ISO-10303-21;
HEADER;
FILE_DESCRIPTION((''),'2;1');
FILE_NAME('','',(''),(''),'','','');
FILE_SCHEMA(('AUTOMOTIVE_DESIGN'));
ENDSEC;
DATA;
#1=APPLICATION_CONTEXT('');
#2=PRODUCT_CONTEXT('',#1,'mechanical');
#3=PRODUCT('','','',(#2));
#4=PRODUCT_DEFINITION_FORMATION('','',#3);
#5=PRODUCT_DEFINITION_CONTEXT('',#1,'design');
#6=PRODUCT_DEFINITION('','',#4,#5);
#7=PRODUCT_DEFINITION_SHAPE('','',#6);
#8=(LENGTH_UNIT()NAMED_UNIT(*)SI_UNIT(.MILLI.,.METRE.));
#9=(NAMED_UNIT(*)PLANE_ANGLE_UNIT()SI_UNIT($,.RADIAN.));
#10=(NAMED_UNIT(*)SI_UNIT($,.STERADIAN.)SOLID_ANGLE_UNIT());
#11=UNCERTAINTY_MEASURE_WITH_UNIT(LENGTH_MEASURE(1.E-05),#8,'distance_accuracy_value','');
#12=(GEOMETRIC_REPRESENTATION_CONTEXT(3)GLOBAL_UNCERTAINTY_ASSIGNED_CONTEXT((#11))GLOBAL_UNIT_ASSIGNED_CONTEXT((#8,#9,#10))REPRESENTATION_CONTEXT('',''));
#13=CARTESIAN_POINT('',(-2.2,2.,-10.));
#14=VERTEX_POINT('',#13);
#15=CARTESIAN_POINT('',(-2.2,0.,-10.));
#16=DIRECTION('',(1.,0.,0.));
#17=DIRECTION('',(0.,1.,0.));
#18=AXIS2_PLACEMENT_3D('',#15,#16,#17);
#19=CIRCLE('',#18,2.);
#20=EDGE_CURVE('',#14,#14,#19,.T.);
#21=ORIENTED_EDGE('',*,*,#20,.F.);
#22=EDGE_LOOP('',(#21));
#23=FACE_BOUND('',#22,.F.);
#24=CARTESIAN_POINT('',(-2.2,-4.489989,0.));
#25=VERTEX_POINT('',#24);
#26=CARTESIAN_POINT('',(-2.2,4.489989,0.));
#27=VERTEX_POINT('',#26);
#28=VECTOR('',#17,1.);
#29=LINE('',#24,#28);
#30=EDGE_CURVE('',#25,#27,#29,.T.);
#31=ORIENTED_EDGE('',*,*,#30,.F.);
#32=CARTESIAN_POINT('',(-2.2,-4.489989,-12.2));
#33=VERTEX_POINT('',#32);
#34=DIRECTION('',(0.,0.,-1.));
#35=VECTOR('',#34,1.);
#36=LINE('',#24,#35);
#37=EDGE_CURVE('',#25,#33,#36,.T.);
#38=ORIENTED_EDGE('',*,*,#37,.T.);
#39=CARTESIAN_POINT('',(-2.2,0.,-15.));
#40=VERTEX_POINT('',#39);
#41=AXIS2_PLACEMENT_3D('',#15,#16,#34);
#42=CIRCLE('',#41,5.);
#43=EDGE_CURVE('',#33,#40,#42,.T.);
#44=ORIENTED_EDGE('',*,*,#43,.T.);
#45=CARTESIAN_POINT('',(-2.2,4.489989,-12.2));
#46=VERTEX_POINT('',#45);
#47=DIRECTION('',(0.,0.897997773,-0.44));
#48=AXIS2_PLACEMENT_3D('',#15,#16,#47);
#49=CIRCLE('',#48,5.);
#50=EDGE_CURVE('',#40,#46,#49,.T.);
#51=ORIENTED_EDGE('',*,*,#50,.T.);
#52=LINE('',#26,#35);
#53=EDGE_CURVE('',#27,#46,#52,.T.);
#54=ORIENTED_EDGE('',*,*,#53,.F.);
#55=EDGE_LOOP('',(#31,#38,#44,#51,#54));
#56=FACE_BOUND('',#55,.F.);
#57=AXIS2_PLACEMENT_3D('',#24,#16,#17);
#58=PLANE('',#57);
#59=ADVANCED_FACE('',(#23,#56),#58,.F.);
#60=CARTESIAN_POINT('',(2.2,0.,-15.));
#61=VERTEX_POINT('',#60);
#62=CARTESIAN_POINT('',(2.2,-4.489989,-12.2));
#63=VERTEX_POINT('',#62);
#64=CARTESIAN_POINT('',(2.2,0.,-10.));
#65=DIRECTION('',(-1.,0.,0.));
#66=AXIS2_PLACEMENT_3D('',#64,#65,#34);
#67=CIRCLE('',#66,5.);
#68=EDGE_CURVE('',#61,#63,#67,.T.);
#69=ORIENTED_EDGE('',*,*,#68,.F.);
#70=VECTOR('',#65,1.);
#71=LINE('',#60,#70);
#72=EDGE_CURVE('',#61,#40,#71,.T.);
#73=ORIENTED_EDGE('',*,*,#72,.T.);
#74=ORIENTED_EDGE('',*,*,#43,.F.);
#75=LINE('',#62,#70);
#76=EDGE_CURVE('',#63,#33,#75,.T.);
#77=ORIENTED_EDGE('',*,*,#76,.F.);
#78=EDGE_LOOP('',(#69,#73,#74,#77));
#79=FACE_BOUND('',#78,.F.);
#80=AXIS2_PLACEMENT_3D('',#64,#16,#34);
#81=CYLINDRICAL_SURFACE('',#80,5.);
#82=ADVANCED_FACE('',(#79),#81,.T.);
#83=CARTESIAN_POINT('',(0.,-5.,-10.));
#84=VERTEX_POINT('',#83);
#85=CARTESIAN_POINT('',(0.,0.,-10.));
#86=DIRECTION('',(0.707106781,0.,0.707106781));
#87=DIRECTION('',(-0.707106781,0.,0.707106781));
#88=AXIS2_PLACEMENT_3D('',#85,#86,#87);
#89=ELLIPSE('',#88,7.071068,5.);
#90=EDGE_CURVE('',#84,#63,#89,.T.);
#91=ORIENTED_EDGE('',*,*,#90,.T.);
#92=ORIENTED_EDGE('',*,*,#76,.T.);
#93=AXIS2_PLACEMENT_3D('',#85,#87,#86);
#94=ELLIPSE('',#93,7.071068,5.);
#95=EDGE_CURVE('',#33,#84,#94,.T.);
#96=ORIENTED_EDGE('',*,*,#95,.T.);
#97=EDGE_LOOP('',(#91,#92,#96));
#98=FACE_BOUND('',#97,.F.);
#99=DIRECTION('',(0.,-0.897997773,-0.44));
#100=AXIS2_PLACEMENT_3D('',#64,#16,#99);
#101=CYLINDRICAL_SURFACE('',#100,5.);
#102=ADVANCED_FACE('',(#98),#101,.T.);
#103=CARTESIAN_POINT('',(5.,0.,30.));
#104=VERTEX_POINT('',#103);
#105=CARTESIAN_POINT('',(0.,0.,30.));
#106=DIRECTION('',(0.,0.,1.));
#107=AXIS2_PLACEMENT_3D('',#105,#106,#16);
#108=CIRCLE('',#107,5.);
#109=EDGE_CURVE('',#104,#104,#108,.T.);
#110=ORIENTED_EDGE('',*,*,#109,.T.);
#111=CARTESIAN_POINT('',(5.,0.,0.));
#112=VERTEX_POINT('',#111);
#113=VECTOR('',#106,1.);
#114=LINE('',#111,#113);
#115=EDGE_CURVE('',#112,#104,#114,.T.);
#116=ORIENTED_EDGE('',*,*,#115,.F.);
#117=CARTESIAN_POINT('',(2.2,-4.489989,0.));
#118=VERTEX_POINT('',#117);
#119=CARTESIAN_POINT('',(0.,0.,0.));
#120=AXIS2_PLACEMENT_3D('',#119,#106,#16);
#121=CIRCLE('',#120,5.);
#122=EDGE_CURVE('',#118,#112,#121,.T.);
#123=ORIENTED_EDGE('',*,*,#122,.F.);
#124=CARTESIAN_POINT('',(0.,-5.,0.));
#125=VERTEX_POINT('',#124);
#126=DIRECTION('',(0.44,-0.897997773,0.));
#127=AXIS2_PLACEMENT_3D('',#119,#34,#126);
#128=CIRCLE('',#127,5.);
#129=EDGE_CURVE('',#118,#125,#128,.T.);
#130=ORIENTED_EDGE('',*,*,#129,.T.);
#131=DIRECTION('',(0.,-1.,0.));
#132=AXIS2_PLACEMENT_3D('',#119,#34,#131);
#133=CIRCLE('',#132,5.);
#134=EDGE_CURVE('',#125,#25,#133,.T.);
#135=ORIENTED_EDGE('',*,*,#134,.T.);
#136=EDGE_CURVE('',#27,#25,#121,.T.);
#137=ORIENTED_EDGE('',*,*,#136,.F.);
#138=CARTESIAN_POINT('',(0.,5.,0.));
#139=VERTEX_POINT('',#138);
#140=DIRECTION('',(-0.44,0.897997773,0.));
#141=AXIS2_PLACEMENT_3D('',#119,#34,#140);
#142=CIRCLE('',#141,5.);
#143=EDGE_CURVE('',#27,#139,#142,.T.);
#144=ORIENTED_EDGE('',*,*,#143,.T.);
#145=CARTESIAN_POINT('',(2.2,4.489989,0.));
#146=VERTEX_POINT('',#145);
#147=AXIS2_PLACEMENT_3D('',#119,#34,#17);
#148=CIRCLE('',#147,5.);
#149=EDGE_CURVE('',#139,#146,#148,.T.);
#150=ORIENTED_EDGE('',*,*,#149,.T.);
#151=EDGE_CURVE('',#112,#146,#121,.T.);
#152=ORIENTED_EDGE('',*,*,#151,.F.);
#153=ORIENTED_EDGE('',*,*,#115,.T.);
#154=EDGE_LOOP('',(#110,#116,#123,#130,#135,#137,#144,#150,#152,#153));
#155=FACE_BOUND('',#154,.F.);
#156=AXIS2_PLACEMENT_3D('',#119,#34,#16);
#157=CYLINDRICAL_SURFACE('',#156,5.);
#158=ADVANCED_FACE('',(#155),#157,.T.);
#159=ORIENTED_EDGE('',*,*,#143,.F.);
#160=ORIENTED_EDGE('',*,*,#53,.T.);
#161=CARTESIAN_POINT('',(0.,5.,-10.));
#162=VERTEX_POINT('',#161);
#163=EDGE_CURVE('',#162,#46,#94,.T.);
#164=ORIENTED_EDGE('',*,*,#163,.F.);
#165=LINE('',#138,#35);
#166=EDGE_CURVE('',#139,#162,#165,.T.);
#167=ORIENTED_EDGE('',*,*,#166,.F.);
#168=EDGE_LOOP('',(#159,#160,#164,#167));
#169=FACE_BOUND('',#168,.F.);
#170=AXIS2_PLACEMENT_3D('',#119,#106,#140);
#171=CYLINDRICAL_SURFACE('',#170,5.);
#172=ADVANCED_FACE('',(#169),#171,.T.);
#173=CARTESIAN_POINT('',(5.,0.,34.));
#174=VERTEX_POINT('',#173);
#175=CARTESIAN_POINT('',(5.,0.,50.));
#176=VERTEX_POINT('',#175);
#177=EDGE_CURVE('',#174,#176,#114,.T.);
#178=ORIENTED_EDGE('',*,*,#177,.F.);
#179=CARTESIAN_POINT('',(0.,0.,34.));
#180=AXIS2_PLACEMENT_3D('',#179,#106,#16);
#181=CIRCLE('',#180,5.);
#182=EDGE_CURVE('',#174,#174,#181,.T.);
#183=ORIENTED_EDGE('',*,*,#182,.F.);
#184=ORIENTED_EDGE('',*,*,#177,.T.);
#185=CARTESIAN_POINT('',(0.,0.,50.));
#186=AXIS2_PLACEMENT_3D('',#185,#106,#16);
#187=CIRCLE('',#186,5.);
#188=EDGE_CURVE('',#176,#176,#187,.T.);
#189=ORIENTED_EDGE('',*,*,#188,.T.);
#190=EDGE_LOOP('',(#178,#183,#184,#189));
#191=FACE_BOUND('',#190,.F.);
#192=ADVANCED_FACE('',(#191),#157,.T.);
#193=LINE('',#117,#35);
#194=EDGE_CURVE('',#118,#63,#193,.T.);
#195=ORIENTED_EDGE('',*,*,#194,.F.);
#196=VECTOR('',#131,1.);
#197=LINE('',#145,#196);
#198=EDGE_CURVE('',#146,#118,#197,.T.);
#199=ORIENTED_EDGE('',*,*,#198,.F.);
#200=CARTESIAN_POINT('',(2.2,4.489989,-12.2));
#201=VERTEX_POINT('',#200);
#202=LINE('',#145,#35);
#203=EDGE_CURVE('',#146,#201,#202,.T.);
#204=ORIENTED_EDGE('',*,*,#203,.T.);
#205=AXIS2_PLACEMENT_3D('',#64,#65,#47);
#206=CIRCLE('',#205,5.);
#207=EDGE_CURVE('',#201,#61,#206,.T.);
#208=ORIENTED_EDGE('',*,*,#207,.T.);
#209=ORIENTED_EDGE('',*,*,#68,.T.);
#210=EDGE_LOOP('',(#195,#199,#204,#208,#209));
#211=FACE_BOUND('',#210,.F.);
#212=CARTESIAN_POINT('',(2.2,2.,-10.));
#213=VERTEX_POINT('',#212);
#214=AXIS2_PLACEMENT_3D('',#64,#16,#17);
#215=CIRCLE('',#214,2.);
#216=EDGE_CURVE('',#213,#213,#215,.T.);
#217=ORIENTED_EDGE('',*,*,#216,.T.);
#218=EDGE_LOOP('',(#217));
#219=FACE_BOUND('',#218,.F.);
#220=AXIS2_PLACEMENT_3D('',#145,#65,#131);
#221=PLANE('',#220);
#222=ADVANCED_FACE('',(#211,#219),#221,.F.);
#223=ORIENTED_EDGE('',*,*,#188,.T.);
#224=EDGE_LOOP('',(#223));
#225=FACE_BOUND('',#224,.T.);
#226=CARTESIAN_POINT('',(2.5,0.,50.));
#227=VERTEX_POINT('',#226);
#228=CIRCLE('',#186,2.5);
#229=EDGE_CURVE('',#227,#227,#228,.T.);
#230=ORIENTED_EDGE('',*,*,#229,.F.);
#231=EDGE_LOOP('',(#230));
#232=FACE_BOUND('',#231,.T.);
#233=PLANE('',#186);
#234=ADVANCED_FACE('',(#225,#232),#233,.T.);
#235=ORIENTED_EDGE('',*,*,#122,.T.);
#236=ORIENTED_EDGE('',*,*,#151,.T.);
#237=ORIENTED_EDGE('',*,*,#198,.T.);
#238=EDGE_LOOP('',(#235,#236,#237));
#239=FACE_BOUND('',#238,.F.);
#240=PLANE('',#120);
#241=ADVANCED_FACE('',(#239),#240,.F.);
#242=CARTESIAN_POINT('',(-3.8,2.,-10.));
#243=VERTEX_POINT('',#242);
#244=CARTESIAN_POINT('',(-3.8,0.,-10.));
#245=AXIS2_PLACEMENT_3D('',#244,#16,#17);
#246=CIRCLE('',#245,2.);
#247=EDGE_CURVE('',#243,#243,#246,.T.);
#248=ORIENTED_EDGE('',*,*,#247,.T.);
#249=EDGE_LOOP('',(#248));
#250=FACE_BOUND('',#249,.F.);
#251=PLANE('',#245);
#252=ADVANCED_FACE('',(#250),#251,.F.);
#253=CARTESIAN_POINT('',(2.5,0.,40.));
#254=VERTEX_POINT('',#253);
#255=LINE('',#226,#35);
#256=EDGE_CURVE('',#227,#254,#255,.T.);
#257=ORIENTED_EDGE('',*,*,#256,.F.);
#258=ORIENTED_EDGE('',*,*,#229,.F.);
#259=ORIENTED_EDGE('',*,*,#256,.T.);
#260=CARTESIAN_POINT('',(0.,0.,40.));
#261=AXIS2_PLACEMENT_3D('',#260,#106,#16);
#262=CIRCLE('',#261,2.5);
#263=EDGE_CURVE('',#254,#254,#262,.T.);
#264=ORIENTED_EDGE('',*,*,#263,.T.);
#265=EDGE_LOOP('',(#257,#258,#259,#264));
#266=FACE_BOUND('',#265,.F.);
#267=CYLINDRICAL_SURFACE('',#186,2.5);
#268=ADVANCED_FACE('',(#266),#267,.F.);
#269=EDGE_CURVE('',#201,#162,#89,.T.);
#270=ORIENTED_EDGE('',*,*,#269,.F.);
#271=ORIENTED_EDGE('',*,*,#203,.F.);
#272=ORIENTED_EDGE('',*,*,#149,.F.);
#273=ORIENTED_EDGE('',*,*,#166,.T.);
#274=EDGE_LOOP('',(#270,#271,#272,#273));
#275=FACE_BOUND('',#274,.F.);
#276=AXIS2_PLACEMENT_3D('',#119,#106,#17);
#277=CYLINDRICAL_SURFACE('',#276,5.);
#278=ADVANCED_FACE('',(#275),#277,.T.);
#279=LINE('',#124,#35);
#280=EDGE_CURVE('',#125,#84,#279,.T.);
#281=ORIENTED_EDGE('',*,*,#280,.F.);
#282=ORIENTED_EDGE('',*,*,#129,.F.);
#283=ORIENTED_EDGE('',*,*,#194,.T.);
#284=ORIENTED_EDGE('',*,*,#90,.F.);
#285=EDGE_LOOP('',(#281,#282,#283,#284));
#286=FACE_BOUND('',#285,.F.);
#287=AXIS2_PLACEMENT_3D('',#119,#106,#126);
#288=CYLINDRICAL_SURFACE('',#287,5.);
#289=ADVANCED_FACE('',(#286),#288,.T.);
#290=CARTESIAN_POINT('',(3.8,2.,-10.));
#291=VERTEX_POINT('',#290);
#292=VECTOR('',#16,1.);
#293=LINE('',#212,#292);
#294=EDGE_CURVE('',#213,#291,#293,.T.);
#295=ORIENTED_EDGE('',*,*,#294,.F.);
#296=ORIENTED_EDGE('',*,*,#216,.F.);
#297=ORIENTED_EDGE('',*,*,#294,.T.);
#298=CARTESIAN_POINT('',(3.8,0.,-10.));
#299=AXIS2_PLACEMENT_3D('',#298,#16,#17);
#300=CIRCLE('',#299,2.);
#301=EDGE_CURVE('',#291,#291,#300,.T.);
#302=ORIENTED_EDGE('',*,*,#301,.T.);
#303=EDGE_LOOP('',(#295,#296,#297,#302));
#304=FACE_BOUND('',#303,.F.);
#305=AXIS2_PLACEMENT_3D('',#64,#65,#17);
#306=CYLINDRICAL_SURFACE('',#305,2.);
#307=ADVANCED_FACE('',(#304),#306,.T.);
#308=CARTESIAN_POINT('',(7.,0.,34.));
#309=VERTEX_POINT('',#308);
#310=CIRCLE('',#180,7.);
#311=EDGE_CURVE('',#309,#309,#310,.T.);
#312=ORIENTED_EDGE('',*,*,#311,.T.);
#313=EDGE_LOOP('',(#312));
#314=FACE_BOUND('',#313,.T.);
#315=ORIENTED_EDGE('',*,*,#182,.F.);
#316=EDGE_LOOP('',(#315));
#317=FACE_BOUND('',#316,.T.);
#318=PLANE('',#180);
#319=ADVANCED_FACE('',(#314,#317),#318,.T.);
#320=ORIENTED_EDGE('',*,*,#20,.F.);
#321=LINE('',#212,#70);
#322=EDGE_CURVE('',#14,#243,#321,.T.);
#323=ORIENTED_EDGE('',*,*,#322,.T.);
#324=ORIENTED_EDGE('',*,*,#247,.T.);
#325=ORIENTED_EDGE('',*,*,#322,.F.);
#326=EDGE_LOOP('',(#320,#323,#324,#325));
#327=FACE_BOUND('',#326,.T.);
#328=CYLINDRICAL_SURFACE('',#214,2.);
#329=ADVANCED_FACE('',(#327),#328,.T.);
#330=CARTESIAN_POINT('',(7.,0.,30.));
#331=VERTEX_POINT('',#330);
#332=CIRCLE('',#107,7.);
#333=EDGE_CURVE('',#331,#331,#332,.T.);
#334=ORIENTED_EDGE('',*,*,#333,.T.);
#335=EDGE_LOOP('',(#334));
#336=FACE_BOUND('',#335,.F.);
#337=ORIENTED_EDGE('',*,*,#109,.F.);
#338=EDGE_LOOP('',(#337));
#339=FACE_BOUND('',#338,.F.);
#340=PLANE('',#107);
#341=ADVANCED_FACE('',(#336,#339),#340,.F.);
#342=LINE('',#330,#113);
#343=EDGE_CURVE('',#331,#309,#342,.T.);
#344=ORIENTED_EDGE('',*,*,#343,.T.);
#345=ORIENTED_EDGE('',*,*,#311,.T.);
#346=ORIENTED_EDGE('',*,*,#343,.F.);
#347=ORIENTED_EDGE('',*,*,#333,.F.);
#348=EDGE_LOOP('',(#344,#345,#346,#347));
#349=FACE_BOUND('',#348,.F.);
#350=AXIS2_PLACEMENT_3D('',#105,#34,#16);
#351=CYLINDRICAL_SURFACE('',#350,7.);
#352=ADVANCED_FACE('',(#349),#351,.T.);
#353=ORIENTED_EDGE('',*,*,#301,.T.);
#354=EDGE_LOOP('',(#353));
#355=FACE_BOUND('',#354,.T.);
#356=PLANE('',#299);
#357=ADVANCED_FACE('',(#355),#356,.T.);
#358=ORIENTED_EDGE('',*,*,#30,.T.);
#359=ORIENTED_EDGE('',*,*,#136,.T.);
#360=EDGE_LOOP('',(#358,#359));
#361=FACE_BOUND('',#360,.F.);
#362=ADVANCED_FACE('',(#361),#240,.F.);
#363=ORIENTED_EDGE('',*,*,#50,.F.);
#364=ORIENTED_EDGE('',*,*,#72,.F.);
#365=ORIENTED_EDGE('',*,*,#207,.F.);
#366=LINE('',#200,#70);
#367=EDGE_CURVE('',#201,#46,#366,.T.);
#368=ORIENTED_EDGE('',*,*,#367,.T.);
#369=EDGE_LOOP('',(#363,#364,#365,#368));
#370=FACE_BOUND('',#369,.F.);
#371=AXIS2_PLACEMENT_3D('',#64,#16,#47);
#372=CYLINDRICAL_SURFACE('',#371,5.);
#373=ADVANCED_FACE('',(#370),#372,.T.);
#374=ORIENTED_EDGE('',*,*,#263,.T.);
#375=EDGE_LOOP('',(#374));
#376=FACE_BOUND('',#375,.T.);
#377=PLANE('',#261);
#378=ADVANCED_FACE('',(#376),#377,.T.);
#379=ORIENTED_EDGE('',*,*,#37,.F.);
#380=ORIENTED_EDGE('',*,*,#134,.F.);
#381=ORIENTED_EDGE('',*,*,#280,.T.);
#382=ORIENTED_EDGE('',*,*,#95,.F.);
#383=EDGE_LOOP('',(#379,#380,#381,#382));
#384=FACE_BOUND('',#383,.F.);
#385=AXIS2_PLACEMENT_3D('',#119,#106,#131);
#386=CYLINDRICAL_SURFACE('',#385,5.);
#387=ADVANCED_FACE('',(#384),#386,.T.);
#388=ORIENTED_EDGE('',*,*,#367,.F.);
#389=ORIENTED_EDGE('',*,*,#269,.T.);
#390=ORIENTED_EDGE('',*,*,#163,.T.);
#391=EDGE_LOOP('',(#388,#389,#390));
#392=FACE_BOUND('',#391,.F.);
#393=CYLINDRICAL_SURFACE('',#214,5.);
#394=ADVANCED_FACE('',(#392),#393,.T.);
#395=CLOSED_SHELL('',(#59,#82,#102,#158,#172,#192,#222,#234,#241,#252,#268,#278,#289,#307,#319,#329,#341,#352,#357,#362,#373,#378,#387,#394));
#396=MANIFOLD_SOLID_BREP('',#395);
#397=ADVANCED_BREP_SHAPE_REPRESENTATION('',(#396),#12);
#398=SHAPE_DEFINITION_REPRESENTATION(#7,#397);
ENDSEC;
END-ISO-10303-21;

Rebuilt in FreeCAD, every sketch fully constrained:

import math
import FreeCAD as App
import Part
import Sketcher
Q = App.Units.Quantity

doc = App.newDocument("Part")
params = doc.addObject("Spreadsheet::Sheet", "Params")
for row, (alias, value) in enumerate([
    ("sketch1_diameter", "10 mm"),
    ("pad1_length", "50 mm"),
    ("sketch2_radius", "5 mm"),
    ("pad2_length", "15 mm"),
    ("sketch3_radius", "5 mm"),
    ("pocket1_length", "25 mm"),
    ("sketch4_diameter", "4 mm"),
    ("pad3_length", "1.6 mm"),
    ("pad3_length2", "6 mm"),
    ("sketch5_diameter", "5 mm"),
    ("pocket2_length", "10 mm"),
    ("sketch6_diameter", "14 mm"),
    ("sketch6_diameter2", "10 mm"),
    ("pad4_length", "4 mm"),
], start=1):
    params.set(f"A{row}", alias)
    params.set(f"B{row}", "=" + value)
    params.setAlias(f"B{row}", alias)

body = doc.addObject("PartDesign::Body", "Body")

# Sketch on XY plane
sketch1 = body.newObject("Sketcher::SketchObject", "Sketch")
sketch1.AttachmentSupport = (doc.getObject("XY_Plane"), [""])
sketch1.MapMode = "FlatFace"
sketch1.addGeometry(Part.Circle(App.Vector(0, 0, 0), App.Vector(0, 0, 1), 5), False)
sketch1.addConstraint([
    Sketcher.Constraint("Coincident", 0, 3, -1, 1),
    Sketcher.Constraint("Diameter", 0, Q("10 mm")),
])
sketch1.setExpression("Constraints[1]", "Params.sketch1_diameter")
pad1 = body.newObject("PartDesign::Pad", "Pad")
pad1.Profile = sketch1
pad1.setExpression("Length", "Params.pad1_length")

# Sketch on XY plane
sketch2 = body.newObject("Sketcher::SketchObject", "Sketch001")
sketch2.AttachmentSupport = (doc.getObject("XY_Plane"), [""])
sketch2.MapMode = "FlatFace"
sketch2.addGeometry([
    Part.ArcOfCircle(Part.Circle(App.Vector(0, 0, 0), App.Vector(0, 0, 1), 5), math.radians(-90), math.radians(-64)),  # 0
    Part.ArcOfCircle(Part.Circle(App.Vector(0, 0, 0), App.Vector(0, 0, 1), 5), math.radians(-116), math.radians(-90)),  # 1
    Part.LineSegment(App.Vector(-2.2, -4.5, 0), App.Vector(-2.2, 4.5, 0)),  # 2
    Part.ArcOfCircle(Part.Circle(App.Vector(0, 0, 0), App.Vector(0, 0, 1), 5), math.radians(90), math.radians(116)),  # 3
    Part.ArcOfCircle(Part.Circle(App.Vector(0, 0, 0), App.Vector(0, 0, 1), 5), math.radians(64), math.radians(90)),  # 4
    Part.LineSegment(App.Vector(2.2, 4.5, 0), App.Vector(2.2, -4.5, 0)),  # 5
], False)
sketch2.addConstraint([
    Sketcher.Constraint("Tangent", 0, 1, 1, 2),
    Sketcher.Constraint("Coincident", 1, 1, 2, 1),
    Sketcher.Constraint("Coincident", 2, 2, 3, 2),
    Sketcher.Constraint("Tangent", 3, 1, 4, 2),
    Sketcher.Constraint("Coincident", 4, 1, 5, 1),
    Sketcher.Constraint("Coincident", 5, 2, 0, 2),
    Sketcher.Constraint("Vertical", 2),
    Sketcher.Constraint("Vertical", 5),
    Sketcher.Constraint("Coincident", 0, 3, -1, 1),
    Sketcher.Constraint("Coincident", 3, 3, -1, 1),
    Sketcher.Constraint("Equal", 0, 1),
    Sketcher.Constraint("Equal", 1, 3),
    Sketcher.Constraint("Equal", 3, 4),
    Sketcher.Constraint("PointOnObject", 0, 1, -2),
    Sketcher.Constraint("PointOnObject", 3, 1, -2),
    Sketcher.Constraint("Horizontal", 2, 2, 4, 1),
    Sketcher.Constraint("Radius", 0, Q("5 mm")),
    Sketcher.Constraint("DistanceX", 1, 1, -1, 1, Q("2.2 mm")),
])
sketch2.setExpression("Constraints[16]", "Params.sketch2_radius")
pad2 = body.newObject("PartDesign::Pad", "Pad001")
pad2.Profile = sketch2
pad2.setExpression("Length", "Params.pad2_length")
pad2.Reversed = True

# Sketch on YZ plane
sketch3 = body.newObject("Sketcher::SketchObject", "Sketch002")
sketch3.AttachmentSupport = (doc.getObject("YZ_Plane"), [""])
sketch3.MapMode = "FlatFace"
sketch3.AttachmentOffset = App.Placement(App.Vector(0, 0, 2.2), App.Rotation())
sketch3.addGeometry([
    Part.LineSegment(App.Vector(5, -15, 0), App.Vector(5, -10, 0)),  # 0
    Part.ArcOfCircle(Part.Circle(App.Vector(0, -10, 0), App.Vector(0, 0, 1), 5), math.radians(-26), math.radians(0)),  # 1
    Part.ArcOfCircle(Part.Circle(App.Vector(0, -10, 0), App.Vector(0, 0, 1), 5), math.radians(-90), math.radians(-26)),  # 2
    Part.LineSegment(App.Vector(0, -15, 0), App.Vector(5, -15, 0)),  # 3
    Part.ArcOfCircle(Part.Circle(App.Vector(0, -10, 0), App.Vector(0, 0, 1), 5), math.radians(-154), math.radians(-90)),  # 4
    Part.ArcOfCircle(Part.Circle(App.Vector(0, -10, 0), App.Vector(0, 0, 1), 5), math.radians(180), math.radians(206)),  # 5
    Part.LineSegment(App.Vector(-5, -10, 0), App.Vector(-5, -15, 0)),  # 6
    Part.LineSegment(App.Vector(-5, -15, 0), App.Vector(0, -15, 0)),  # 7
], False)
sketch3.addConstraint([
    Sketcher.Constraint("Tangent", 0, 2, 1, 2),
    Sketcher.Constraint("Tangent", 1, 1, 2, 2),
    Sketcher.Constraint("Tangent", 2, 1, 3, 1),
    Sketcher.Constraint("Coincident", 3, 2, 0, 1),
    Sketcher.Constraint("Tangent", 4, 1, 5, 2),
    Sketcher.Constraint("Tangent", 5, 1, 6, 1),
    Sketcher.Constraint("Coincident", 6, 2, 7, 1),
    Sketcher.Constraint("Tangent", 7, 2, 4, 2),
    Sketcher.Constraint("Vertical", 0),
    Sketcher.Constraint("Horizontal", 3),
    Sketcher.Constraint("Vertical", 6),
    Sketcher.Constraint("Horizontal", 7),
    Sketcher.Constraint("Coincident", 4, 3, 1, 3),
    Sketcher.Constraint("Coincident", 7, 2, 2, 1),
    Sketcher.Constraint("Equal", 4, 5),
    Sketcher.Constraint("Symmetric", 1, 1, 4, 1, -2),
    Sketcher.Constraint("Radius", 1, Q("5 mm")),
    Sketcher.Constraint("DistanceY", 1, 3, -1, 1, Q("10 mm")),
    Sketcher.Constraint("DistanceY", 1, 1, -1, 1, Q("12.2 mm")),
])
sketch3.setExpression("Constraints[16]", "Params.sketch3_radius")
pocket1 = body.newObject("PartDesign::Pocket", "Pocket")
pocket1.Profile = sketch3
pocket1.setExpression("Length", "Params.pocket1_length")

# Sketch on YZ plane
sketch4 = body.newObject("Sketcher::SketchObject", "Sketch003")
sketch4.AttachmentSupport = (doc.getObject("YZ_Plane"), [""])
sketch4.MapMode = "FlatFace"
sketch4.AttachmentOffset = App.Placement(App.Vector(0, 0, 2.2), App.Rotation())
sketch4.addGeometry(Part.Circle(App.Vector(0, -10, 0), App.Vector(0, 0, 1), 2), False)
sketch4.addConstraint([
    Sketcher.Constraint("PointOnObject", 0, 3, -2),
    Sketcher.Constraint("Diameter", 0, Q("4 mm")),
    Sketcher.Constraint("DistanceY", 0, 3, -1, 1, Q("10 mm")),
])
sketch4.setExpression("Constraints[1]", "Params.sketch4_diameter")
pad3 = body.newObject("PartDesign::Pad", "Pad002")
pad3.Profile = sketch4
pad3.Type = "TwoLengths"
pad3.setExpression("Length", "Params.pad3_length")
pad3.setExpression("Length2", "Params.pad3_length2")

# Sketch on XY plane
sketch5 = body.newObject("Sketcher::SketchObject", "Sketch004")
sketch5.AttachmentSupport = (doc.getObject("XY_Plane"), [""])
sketch5.MapMode = "FlatFace"
sketch5.AttachmentOffset = App.Placement(App.Vector(0, 0, 50), App.Rotation())
sketch5.addGeometry(Part.Circle(App.Vector(0, 0, 0), App.Vector(0, 0, 1), 2.5), False)
sketch5.addConstraint([
    Sketcher.Constraint("Coincident", 0, 3, -1, 1),
    Sketcher.Constraint("Diameter", 0, Q("5 mm")),
])
sketch5.setExpression("Constraints[1]", "Params.sketch5_diameter")
pocket2 = body.newObject("PartDesign::Pocket", "Pocket001")
pocket2.Profile = sketch5
pocket2.setExpression("Length", "Params.pocket2_length")

# Sketch on XY plane
sketch6 = body.newObject("Sketcher::SketchObject", "Sketch005")
sketch6.AttachmentSupport = (doc.getObject("XY_Plane"), [""])
sketch6.MapMode = "FlatFace"
sketch6.AttachmentOffset = App.Placement(App.Vector(0, 0, 30), App.Rotation())
sketch6.addGeometry([
    Part.Circle(App.Vector(0, 0, 0), App.Vector(0, 0, 1), 7),
    Part.Circle(App.Vector(0, 0, 0), App.Vector(0, 0, 1), 5),
], False)
sketch6.addConstraint([
    Sketcher.Constraint("Coincident", 0, 3, -1, 1),
    Sketcher.Constraint("Coincident", 1, 3, -1, 1),
    Sketcher.Constraint("Diameter", 0, Q("14 mm")),
    Sketcher.Constraint("Diameter", 1, Q("10 mm")),
])
sketch6.setExpression("Constraints[2]", "Params.sketch6_diameter")
sketch6.setExpression("Constraints[3]", "Params.sketch6_diameter2")
pad4 = body.newObject("PartDesign::Pad", "Pad003")
pad4.Profile = sketch6
pad4.setExpression("Length", "Params.pad4_length")

doc.recompute()
